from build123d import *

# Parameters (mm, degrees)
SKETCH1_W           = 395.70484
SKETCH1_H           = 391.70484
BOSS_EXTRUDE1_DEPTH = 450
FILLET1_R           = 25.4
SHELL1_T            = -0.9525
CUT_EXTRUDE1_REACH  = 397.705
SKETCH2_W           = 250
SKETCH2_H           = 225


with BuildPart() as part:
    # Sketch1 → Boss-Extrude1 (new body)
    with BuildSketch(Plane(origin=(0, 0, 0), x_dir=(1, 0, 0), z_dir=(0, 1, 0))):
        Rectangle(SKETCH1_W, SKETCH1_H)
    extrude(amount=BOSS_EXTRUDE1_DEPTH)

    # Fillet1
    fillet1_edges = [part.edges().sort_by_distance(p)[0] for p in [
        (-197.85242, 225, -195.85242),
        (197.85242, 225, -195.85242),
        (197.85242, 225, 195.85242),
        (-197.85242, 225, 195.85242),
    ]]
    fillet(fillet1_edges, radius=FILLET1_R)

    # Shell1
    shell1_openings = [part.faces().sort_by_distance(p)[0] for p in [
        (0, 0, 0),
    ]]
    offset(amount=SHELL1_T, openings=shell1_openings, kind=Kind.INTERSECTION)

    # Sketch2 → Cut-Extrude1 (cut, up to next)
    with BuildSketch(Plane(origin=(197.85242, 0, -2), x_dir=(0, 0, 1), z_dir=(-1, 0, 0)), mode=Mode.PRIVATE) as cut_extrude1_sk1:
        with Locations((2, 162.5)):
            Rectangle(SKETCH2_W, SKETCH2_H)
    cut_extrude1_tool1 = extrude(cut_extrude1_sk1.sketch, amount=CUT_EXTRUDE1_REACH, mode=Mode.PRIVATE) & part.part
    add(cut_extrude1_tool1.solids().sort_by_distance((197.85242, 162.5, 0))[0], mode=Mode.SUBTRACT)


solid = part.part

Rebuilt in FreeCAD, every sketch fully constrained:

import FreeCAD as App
import Part
import Sketcher
from FreeCAD import Vector


def edges_at(feature, points):
    """Names of the edges that pass closest to the given points."""
    edges = feature.Shape.Edges
    near = lambda p: min(range(len(edges)), key=lambda i: edges[i].distToShape(Part.Vertex(*p))[0])
    return sorted({f"Edge{near(p) + 1}" for p in points})


def faces_at(feature, points):
    """Names of the faces that lie closest to the given points."""
    faces = feature.Shape.Faces
    near = lambda p: min(range(len(faces)), key=lambda i: faces[i].distToShape(Part.Vertex(*p))[0])
    return sorted({f"Face{near(p) + 1}" for p in points})


def add_polygon(sketch, points):
    """Adds a closed chain of lines whose ends are joined by coincident constraints."""
    first, n = sketch.GeometryCount, len(points)
    for a, b in zip(points, points[1:] + points[:1]):
        sketch.addGeometry(Part.LineSegment(App.Vector(*a, 0), App.Vector(*b, 0)), False)
    for i in range(n):
        sketch.addConstraint(Sketcher.Constraint("Coincident", first + i, 2, first + (i + 1) % n, 1))

doc = App.newDocument("Part")
params = doc.addObject("Spreadsheet::Sheet", "Params")
for row, (alias, value) in enumerate([
    ("pad1_length", "450 mm"),
    ("fillet_radius", "25.4 mm"),
    ("thickness_wall", "0.9525 mm"),
    ("sketch2_width", "225 mm"),
    ("sketch2_height", "250 mm"),
], start=1):
    params.set(f"A{row}", alias)
    params.set(f"B{row}", "=" + value)
    params.setAlias(f"B{row}", alias)

body = doc.addObject("PartDesign::Body", "Body")

sketch1 = doc.addObject("Sketcher::SketchObject", "Sketch")
body.addObject(sketch1)
sketch1.AttachmentSupport = (doc.XZ_Plane, [""])
sketch1.MapMode = "FlatFace"
add_polygon(sketch1, [(-198, -196), (-198, 196), (198, 196), (198, -196)])
sketch1.addConstraint(Sketcher.Constraint("Vertical", 0))
sketch1.addConstraint(Sketcher.Constraint("Horizontal", 1))
sketch1.addConstraint(Sketcher.Constraint("Vertical", 2))
sketch1.addConstraint(Sketcher.Constraint("Horizontal", 3))
sketch1.addConstraint(Sketcher.Constraint("Symmetric", 0, 2, 2, 2, -1, 1))
sketch1.addConstraint(Sketcher.Constraint("DistanceX", 1, 1, 1, 2, 395.70484))
sketch1.addConstraint(Sketcher.Constraint("DistanceY", 0, 1, 0, 2, 391.70484))
pad1 = doc.addObject("PartDesign::Pad", "Pad")
body.addObject(pad1)
pad1.Profile = sketch1
pad1.setExpression("Length", "Params.pad1_length")
pad1.Reversed = True
doc.recompute()

fillet = doc.addObject("PartDesign::Fillet", "Fillet")
body.addObject(fillet)
fillet.Base = (pad1, edges_at(pad1, [
    (-197.852, 225, -195.852),
    (197.852, 225, -195.852),
    (197.852, 225, 195.852),
    (-197.852, 225, 195.852),
]))
fillet.setExpression("Radius", "Params.fillet_radius")
doc.recompute()

thickness = doc.addObject("PartDesign::Thickness", "Thickness")
body.addObject(thickness)
thickness.Base = (fillet, faces_at(fillet, [(0, 0, 0)]))
thickness.setExpression("Value", "Params.thickness_wall")
thickness.Reversed = True
thickness.Join = "Intersection"

sketch2 = doc.addObject("Sketcher::SketchObject", "Sketch001")
body.addObject(sketch2)
sketch2.AttachmentSupport = (doc.YZ_Plane, [""])
sketch2.MapMode = "FlatFace"
sketch2.AttachmentOffset = App.Placement(Vector(0, 0, 197.85242), App.Rotation())
add_polygon(sketch2, [(275, -125), (50, -125), (50, 125), (275, 125)])
sketch2.addConstraint(Sketcher.Constraint("Horizontal", 0))
sketch2.addConstraint(Sketcher.Constraint("Vertical", 1))
sketch2.addConstraint(Sketcher.Constraint("Horizontal", 2))
sketch2.addConstraint(Sketcher.Constraint("Vertical", 3))
sketch2.addConstraint(Sketcher.Constraint("DistanceX", 0, 2, 0, 1, 225.0))
sketch2.addConstraint(Sketcher.Constraint("DistanceY", 1, 1, 1, 2, 250.0))
sketch2.addConstraint(Sketcher.Constraint("DistanceX", -1, 1, 0, 2, 50.0))
sketch2.addConstraint(Sketcher.Constraint("DistanceY", 0, 2, -1, 1, 125.0))
sketch2.setExpression("Constraints[8]", "Params.sketch2_width")
sketch2.setExpression("Constraints[9]", "Params.sketch2_height")
pocket1 = doc.addObject("PartDesign::Pocket", "Pocket")
body.addObject(pocket1)
pocket1.Profile = sketch2
pocket1.Type = "UpToFirst"

doc.recompute()
